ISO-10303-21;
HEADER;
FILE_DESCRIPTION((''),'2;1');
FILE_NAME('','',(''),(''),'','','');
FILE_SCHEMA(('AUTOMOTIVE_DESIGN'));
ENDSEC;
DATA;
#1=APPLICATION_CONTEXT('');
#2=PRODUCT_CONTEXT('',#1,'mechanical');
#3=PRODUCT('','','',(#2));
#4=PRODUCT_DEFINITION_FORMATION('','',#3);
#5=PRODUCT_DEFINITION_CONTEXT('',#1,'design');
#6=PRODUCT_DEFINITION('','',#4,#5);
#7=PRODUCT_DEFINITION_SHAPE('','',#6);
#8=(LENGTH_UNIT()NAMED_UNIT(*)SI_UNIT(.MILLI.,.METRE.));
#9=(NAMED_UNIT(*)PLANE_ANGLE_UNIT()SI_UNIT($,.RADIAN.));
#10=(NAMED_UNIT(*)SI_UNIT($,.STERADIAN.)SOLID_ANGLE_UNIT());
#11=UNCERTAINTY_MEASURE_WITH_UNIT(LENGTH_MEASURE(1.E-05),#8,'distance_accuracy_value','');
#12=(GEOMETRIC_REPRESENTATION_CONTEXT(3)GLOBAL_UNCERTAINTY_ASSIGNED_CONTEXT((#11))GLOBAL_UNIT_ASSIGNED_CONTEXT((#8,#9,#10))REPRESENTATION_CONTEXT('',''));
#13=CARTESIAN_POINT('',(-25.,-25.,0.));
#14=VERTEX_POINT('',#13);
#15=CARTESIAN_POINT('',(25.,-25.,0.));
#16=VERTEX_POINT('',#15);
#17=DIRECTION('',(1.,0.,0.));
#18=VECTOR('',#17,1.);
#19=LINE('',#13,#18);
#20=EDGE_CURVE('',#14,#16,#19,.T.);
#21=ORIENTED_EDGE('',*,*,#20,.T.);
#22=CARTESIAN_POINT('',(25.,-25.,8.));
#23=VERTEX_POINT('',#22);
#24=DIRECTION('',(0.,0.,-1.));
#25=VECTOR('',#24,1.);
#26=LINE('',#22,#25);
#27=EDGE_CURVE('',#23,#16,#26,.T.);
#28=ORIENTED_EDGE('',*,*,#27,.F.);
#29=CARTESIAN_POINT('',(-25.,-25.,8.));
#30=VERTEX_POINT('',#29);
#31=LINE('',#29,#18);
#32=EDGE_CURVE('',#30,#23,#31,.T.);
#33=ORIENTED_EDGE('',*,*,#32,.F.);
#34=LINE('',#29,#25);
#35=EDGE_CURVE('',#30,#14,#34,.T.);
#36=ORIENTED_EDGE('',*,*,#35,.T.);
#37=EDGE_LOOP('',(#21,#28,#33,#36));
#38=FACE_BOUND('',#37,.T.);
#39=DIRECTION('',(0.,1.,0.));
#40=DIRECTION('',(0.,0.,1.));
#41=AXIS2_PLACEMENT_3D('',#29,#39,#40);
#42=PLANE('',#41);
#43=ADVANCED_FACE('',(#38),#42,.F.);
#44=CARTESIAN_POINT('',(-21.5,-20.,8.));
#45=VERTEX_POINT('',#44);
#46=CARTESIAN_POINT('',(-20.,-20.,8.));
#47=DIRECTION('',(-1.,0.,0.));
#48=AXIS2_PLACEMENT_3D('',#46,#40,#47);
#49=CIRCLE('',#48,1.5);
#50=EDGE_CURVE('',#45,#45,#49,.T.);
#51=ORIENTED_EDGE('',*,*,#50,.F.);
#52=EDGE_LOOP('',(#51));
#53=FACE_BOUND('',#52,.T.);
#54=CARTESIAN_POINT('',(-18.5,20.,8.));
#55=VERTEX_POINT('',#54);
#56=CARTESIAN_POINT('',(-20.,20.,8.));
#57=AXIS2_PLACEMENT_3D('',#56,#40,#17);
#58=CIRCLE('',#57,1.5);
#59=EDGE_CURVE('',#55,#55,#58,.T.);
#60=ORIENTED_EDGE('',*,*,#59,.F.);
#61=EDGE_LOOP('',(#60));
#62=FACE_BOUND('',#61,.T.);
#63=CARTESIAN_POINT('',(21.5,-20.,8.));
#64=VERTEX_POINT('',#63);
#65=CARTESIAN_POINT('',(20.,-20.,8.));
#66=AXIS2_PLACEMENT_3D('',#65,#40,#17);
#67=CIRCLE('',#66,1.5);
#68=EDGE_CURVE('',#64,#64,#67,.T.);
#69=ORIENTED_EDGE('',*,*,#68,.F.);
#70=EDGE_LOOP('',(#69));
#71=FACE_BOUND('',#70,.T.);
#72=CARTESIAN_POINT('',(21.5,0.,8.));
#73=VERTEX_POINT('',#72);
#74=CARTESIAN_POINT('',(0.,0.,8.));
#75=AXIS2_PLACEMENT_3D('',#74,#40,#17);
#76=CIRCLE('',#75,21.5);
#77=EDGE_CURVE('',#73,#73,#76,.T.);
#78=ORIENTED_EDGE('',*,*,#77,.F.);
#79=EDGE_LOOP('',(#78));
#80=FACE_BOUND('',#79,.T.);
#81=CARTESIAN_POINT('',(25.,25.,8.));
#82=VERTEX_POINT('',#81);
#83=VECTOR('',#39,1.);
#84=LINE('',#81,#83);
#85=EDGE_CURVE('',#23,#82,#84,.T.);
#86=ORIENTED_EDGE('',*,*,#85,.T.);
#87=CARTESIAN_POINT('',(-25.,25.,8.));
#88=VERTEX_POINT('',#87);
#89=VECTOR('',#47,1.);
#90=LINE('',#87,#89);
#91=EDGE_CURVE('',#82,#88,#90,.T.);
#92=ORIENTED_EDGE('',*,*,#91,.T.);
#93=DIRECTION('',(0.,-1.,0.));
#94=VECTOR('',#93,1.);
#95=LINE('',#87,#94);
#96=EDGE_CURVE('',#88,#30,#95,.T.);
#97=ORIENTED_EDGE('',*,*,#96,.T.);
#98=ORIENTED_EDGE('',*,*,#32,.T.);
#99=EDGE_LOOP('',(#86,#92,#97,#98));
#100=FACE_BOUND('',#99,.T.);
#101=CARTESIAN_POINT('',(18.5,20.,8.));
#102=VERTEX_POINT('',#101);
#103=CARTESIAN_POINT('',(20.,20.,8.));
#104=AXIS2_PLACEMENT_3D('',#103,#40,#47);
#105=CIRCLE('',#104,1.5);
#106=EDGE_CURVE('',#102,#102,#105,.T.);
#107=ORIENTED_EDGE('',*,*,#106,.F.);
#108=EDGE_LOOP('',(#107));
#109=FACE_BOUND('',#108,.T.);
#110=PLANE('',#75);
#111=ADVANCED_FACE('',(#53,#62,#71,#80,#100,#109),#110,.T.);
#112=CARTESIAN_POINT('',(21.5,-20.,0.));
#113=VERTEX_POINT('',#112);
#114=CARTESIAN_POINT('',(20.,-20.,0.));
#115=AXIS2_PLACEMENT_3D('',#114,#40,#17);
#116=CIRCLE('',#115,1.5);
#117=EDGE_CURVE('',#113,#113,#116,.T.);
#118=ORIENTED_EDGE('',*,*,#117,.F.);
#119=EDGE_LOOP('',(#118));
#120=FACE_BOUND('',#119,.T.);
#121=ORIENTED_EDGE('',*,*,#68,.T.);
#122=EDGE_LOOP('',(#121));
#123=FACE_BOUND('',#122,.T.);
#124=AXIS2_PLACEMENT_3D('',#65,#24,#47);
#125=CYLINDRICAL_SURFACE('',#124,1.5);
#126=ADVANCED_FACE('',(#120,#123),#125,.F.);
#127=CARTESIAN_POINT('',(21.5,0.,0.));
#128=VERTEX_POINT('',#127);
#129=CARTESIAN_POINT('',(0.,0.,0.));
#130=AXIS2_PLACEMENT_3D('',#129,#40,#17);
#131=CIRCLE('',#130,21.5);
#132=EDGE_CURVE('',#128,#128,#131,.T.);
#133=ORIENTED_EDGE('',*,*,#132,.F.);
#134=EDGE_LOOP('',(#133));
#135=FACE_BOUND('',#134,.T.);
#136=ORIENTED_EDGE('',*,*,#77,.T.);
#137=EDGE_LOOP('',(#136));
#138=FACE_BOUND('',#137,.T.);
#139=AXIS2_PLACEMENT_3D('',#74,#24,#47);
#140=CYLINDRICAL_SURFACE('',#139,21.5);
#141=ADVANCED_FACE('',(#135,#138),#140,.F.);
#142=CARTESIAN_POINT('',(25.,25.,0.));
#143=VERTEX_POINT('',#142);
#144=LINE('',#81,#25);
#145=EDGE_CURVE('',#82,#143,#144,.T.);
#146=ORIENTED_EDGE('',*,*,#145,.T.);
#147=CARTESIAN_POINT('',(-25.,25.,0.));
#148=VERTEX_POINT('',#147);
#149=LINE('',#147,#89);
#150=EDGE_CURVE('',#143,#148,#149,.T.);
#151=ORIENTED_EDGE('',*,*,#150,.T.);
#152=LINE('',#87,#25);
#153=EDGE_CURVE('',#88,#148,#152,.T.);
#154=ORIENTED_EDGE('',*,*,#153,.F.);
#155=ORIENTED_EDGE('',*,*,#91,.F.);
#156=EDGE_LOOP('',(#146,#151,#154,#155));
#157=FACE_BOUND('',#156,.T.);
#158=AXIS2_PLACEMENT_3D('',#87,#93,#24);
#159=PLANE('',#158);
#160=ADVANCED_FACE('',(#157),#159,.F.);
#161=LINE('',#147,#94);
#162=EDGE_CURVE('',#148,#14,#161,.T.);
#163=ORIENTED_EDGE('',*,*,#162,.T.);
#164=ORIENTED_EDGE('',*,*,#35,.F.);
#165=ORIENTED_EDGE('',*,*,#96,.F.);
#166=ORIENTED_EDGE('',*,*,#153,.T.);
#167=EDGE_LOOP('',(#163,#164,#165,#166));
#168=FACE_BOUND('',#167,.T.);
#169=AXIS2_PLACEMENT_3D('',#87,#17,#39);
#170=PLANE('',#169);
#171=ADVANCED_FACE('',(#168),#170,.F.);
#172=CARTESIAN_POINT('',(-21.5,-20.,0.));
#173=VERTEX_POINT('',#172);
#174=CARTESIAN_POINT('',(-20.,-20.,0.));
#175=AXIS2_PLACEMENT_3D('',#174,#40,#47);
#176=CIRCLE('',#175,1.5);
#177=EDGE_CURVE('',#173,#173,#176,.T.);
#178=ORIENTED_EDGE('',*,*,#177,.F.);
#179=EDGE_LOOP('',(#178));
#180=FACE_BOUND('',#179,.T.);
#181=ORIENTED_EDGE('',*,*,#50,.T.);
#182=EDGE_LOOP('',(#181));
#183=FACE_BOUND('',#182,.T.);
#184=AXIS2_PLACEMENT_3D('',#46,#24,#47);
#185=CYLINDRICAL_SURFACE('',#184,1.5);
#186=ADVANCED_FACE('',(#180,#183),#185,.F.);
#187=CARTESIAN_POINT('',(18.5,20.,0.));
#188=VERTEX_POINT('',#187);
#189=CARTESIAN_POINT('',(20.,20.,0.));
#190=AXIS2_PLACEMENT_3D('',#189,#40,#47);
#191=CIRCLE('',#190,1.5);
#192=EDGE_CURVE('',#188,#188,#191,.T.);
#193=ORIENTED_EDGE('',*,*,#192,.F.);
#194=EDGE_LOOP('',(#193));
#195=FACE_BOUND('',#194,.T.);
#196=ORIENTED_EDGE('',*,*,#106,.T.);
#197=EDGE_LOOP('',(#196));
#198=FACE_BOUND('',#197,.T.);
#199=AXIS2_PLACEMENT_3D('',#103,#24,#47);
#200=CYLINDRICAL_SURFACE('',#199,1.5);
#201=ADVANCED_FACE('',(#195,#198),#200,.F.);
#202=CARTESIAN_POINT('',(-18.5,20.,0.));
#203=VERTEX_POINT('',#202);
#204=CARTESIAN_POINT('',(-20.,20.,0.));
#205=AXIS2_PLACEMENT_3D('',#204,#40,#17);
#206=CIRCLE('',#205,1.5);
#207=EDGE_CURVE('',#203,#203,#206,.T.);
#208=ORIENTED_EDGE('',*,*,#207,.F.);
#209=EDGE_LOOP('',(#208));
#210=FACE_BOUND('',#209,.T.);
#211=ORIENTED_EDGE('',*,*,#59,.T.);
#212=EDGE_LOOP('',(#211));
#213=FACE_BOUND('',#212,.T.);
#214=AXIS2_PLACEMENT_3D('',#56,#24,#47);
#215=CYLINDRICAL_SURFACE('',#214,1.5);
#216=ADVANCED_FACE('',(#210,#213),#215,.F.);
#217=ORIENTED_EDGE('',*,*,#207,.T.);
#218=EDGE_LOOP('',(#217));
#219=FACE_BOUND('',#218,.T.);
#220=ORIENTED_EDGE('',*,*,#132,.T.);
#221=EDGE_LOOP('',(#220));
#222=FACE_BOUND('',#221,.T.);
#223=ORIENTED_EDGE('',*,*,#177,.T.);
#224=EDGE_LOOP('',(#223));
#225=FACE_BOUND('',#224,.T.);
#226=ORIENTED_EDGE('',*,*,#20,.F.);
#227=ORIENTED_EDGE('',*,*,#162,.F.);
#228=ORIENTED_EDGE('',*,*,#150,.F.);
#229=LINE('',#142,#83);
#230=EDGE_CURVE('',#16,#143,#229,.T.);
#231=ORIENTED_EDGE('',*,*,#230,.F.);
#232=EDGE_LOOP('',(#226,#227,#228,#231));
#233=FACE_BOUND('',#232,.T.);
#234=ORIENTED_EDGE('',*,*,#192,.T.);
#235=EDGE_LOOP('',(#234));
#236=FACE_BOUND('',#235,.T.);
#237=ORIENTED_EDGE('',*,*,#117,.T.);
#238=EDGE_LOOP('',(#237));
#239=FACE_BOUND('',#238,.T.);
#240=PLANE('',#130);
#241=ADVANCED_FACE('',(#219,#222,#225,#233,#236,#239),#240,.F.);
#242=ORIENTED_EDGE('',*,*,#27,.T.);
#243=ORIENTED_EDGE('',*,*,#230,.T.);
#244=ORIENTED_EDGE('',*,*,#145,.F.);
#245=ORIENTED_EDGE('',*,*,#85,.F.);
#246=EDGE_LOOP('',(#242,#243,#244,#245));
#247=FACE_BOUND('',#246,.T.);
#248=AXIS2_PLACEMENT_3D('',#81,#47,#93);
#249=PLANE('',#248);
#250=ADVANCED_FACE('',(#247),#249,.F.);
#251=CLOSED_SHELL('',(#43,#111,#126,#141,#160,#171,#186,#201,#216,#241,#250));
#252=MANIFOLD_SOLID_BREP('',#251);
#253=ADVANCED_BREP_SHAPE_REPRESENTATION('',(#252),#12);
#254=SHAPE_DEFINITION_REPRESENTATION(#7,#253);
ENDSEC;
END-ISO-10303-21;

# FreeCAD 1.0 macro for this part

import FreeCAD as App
import Part
import Sketcher

V = App.Vector


def add_polygon(sketch, points):
    """Adds a closed chain of lines whose ends are joined by coincident constraints."""
    first, n = sketch.GeometryCount, len(points)
    for a, b in zip(points, points[1:] + points[:1]):
        sketch.addGeometry(Part.LineSegment(App.Vector(*a, 0), App.Vector(*b, 0)), False)
    for i in range(n):
        sketch.addConstraint(Sketcher.Constraint("Coincident", first + i, 2, first + (i + 1) % n, 1))

doc = App.newDocument("Part")
body = doc.addObject("PartDesign::Body", "Body")

sketch1 = body.newObject("Sketcher::SketchObject", "Sketch")
sketch1.AttachmentSupport = (doc.getObject("XY_Plane"), [""])
sketch1.MapMode = "FlatFace"
add_polygon(sketch1, [(-25, 25), (-25, -25), (25, -25), (25, 25)])
sketch1.addGeometry(Part.Circle(V(-20, -20, 0), V(0, 0, 1), 1.5), False)
sketch1.addGeometry(Part.Circle(V(20, -20, 0), V(0, 0, 1), 1.5), False)
sketch1.addGeometry(Part.Circle(V(-20, 20, 0), V(0, 0, 1), 1.5), False)
sketch1.addGeometry(Part.Circle(V(0, 0, 0), V(0, 0, 1), 21.5), False)
sketch1.addGeometry(Part.Circle(V(20, 20, 0), V(0, 0, 1), 1.5), False)
sketch1.addConstraint([
    Sketcher.Constraint("Vertical", 0),
    Sketcher.Constraint("Horizontal", 1),
    Sketcher.Constraint("Vertical", 2),
    Sketcher.Constraint("Horizontal", 3),
    Sketcher.Constraint("Coincident", 7, 3, -1, 1),
    Sketcher.Constraint("Equal", 4, 5),
    Sketcher.Constraint("Equal", 5, 6),
    Sketcher.Constraint("Equal", 6, 8),
    Sketcher.Constraint("Symmetric", 5, 3, 6, 3, -1, 1),
    Sketcher.Constraint("Symmetric", 4, 3, 8, 3, -1, 1),
    Sketcher.Constraint("Symmetric", 0, 2, 2, 2, -1, 1),
    Sketcher.Constraint("Symmetric", 4, 3, 5, 3, -2),
    Sketcher.Constraint("Equal", 3, 0),
    Sketcher.Constraint("Diameter", 4, 3.0),
    Sketcher.Constraint("Diameter", 7, 43.0),
    Sketcher.Constraint("DistanceX", 1, 1, 1, 2, 50.0),
    Sketcher.Constraint("DistanceX", 4, 3, -1, 1, 20.0),
    Sketcher.Constraint("DistanceY", 4, 3, -1, 1, 20.0),
])
pad1 = body.newObject("PartDesign::Pad", "Pad")
pad1.Profile = sketch1
pad1.Length = 8

doc.recompute()
